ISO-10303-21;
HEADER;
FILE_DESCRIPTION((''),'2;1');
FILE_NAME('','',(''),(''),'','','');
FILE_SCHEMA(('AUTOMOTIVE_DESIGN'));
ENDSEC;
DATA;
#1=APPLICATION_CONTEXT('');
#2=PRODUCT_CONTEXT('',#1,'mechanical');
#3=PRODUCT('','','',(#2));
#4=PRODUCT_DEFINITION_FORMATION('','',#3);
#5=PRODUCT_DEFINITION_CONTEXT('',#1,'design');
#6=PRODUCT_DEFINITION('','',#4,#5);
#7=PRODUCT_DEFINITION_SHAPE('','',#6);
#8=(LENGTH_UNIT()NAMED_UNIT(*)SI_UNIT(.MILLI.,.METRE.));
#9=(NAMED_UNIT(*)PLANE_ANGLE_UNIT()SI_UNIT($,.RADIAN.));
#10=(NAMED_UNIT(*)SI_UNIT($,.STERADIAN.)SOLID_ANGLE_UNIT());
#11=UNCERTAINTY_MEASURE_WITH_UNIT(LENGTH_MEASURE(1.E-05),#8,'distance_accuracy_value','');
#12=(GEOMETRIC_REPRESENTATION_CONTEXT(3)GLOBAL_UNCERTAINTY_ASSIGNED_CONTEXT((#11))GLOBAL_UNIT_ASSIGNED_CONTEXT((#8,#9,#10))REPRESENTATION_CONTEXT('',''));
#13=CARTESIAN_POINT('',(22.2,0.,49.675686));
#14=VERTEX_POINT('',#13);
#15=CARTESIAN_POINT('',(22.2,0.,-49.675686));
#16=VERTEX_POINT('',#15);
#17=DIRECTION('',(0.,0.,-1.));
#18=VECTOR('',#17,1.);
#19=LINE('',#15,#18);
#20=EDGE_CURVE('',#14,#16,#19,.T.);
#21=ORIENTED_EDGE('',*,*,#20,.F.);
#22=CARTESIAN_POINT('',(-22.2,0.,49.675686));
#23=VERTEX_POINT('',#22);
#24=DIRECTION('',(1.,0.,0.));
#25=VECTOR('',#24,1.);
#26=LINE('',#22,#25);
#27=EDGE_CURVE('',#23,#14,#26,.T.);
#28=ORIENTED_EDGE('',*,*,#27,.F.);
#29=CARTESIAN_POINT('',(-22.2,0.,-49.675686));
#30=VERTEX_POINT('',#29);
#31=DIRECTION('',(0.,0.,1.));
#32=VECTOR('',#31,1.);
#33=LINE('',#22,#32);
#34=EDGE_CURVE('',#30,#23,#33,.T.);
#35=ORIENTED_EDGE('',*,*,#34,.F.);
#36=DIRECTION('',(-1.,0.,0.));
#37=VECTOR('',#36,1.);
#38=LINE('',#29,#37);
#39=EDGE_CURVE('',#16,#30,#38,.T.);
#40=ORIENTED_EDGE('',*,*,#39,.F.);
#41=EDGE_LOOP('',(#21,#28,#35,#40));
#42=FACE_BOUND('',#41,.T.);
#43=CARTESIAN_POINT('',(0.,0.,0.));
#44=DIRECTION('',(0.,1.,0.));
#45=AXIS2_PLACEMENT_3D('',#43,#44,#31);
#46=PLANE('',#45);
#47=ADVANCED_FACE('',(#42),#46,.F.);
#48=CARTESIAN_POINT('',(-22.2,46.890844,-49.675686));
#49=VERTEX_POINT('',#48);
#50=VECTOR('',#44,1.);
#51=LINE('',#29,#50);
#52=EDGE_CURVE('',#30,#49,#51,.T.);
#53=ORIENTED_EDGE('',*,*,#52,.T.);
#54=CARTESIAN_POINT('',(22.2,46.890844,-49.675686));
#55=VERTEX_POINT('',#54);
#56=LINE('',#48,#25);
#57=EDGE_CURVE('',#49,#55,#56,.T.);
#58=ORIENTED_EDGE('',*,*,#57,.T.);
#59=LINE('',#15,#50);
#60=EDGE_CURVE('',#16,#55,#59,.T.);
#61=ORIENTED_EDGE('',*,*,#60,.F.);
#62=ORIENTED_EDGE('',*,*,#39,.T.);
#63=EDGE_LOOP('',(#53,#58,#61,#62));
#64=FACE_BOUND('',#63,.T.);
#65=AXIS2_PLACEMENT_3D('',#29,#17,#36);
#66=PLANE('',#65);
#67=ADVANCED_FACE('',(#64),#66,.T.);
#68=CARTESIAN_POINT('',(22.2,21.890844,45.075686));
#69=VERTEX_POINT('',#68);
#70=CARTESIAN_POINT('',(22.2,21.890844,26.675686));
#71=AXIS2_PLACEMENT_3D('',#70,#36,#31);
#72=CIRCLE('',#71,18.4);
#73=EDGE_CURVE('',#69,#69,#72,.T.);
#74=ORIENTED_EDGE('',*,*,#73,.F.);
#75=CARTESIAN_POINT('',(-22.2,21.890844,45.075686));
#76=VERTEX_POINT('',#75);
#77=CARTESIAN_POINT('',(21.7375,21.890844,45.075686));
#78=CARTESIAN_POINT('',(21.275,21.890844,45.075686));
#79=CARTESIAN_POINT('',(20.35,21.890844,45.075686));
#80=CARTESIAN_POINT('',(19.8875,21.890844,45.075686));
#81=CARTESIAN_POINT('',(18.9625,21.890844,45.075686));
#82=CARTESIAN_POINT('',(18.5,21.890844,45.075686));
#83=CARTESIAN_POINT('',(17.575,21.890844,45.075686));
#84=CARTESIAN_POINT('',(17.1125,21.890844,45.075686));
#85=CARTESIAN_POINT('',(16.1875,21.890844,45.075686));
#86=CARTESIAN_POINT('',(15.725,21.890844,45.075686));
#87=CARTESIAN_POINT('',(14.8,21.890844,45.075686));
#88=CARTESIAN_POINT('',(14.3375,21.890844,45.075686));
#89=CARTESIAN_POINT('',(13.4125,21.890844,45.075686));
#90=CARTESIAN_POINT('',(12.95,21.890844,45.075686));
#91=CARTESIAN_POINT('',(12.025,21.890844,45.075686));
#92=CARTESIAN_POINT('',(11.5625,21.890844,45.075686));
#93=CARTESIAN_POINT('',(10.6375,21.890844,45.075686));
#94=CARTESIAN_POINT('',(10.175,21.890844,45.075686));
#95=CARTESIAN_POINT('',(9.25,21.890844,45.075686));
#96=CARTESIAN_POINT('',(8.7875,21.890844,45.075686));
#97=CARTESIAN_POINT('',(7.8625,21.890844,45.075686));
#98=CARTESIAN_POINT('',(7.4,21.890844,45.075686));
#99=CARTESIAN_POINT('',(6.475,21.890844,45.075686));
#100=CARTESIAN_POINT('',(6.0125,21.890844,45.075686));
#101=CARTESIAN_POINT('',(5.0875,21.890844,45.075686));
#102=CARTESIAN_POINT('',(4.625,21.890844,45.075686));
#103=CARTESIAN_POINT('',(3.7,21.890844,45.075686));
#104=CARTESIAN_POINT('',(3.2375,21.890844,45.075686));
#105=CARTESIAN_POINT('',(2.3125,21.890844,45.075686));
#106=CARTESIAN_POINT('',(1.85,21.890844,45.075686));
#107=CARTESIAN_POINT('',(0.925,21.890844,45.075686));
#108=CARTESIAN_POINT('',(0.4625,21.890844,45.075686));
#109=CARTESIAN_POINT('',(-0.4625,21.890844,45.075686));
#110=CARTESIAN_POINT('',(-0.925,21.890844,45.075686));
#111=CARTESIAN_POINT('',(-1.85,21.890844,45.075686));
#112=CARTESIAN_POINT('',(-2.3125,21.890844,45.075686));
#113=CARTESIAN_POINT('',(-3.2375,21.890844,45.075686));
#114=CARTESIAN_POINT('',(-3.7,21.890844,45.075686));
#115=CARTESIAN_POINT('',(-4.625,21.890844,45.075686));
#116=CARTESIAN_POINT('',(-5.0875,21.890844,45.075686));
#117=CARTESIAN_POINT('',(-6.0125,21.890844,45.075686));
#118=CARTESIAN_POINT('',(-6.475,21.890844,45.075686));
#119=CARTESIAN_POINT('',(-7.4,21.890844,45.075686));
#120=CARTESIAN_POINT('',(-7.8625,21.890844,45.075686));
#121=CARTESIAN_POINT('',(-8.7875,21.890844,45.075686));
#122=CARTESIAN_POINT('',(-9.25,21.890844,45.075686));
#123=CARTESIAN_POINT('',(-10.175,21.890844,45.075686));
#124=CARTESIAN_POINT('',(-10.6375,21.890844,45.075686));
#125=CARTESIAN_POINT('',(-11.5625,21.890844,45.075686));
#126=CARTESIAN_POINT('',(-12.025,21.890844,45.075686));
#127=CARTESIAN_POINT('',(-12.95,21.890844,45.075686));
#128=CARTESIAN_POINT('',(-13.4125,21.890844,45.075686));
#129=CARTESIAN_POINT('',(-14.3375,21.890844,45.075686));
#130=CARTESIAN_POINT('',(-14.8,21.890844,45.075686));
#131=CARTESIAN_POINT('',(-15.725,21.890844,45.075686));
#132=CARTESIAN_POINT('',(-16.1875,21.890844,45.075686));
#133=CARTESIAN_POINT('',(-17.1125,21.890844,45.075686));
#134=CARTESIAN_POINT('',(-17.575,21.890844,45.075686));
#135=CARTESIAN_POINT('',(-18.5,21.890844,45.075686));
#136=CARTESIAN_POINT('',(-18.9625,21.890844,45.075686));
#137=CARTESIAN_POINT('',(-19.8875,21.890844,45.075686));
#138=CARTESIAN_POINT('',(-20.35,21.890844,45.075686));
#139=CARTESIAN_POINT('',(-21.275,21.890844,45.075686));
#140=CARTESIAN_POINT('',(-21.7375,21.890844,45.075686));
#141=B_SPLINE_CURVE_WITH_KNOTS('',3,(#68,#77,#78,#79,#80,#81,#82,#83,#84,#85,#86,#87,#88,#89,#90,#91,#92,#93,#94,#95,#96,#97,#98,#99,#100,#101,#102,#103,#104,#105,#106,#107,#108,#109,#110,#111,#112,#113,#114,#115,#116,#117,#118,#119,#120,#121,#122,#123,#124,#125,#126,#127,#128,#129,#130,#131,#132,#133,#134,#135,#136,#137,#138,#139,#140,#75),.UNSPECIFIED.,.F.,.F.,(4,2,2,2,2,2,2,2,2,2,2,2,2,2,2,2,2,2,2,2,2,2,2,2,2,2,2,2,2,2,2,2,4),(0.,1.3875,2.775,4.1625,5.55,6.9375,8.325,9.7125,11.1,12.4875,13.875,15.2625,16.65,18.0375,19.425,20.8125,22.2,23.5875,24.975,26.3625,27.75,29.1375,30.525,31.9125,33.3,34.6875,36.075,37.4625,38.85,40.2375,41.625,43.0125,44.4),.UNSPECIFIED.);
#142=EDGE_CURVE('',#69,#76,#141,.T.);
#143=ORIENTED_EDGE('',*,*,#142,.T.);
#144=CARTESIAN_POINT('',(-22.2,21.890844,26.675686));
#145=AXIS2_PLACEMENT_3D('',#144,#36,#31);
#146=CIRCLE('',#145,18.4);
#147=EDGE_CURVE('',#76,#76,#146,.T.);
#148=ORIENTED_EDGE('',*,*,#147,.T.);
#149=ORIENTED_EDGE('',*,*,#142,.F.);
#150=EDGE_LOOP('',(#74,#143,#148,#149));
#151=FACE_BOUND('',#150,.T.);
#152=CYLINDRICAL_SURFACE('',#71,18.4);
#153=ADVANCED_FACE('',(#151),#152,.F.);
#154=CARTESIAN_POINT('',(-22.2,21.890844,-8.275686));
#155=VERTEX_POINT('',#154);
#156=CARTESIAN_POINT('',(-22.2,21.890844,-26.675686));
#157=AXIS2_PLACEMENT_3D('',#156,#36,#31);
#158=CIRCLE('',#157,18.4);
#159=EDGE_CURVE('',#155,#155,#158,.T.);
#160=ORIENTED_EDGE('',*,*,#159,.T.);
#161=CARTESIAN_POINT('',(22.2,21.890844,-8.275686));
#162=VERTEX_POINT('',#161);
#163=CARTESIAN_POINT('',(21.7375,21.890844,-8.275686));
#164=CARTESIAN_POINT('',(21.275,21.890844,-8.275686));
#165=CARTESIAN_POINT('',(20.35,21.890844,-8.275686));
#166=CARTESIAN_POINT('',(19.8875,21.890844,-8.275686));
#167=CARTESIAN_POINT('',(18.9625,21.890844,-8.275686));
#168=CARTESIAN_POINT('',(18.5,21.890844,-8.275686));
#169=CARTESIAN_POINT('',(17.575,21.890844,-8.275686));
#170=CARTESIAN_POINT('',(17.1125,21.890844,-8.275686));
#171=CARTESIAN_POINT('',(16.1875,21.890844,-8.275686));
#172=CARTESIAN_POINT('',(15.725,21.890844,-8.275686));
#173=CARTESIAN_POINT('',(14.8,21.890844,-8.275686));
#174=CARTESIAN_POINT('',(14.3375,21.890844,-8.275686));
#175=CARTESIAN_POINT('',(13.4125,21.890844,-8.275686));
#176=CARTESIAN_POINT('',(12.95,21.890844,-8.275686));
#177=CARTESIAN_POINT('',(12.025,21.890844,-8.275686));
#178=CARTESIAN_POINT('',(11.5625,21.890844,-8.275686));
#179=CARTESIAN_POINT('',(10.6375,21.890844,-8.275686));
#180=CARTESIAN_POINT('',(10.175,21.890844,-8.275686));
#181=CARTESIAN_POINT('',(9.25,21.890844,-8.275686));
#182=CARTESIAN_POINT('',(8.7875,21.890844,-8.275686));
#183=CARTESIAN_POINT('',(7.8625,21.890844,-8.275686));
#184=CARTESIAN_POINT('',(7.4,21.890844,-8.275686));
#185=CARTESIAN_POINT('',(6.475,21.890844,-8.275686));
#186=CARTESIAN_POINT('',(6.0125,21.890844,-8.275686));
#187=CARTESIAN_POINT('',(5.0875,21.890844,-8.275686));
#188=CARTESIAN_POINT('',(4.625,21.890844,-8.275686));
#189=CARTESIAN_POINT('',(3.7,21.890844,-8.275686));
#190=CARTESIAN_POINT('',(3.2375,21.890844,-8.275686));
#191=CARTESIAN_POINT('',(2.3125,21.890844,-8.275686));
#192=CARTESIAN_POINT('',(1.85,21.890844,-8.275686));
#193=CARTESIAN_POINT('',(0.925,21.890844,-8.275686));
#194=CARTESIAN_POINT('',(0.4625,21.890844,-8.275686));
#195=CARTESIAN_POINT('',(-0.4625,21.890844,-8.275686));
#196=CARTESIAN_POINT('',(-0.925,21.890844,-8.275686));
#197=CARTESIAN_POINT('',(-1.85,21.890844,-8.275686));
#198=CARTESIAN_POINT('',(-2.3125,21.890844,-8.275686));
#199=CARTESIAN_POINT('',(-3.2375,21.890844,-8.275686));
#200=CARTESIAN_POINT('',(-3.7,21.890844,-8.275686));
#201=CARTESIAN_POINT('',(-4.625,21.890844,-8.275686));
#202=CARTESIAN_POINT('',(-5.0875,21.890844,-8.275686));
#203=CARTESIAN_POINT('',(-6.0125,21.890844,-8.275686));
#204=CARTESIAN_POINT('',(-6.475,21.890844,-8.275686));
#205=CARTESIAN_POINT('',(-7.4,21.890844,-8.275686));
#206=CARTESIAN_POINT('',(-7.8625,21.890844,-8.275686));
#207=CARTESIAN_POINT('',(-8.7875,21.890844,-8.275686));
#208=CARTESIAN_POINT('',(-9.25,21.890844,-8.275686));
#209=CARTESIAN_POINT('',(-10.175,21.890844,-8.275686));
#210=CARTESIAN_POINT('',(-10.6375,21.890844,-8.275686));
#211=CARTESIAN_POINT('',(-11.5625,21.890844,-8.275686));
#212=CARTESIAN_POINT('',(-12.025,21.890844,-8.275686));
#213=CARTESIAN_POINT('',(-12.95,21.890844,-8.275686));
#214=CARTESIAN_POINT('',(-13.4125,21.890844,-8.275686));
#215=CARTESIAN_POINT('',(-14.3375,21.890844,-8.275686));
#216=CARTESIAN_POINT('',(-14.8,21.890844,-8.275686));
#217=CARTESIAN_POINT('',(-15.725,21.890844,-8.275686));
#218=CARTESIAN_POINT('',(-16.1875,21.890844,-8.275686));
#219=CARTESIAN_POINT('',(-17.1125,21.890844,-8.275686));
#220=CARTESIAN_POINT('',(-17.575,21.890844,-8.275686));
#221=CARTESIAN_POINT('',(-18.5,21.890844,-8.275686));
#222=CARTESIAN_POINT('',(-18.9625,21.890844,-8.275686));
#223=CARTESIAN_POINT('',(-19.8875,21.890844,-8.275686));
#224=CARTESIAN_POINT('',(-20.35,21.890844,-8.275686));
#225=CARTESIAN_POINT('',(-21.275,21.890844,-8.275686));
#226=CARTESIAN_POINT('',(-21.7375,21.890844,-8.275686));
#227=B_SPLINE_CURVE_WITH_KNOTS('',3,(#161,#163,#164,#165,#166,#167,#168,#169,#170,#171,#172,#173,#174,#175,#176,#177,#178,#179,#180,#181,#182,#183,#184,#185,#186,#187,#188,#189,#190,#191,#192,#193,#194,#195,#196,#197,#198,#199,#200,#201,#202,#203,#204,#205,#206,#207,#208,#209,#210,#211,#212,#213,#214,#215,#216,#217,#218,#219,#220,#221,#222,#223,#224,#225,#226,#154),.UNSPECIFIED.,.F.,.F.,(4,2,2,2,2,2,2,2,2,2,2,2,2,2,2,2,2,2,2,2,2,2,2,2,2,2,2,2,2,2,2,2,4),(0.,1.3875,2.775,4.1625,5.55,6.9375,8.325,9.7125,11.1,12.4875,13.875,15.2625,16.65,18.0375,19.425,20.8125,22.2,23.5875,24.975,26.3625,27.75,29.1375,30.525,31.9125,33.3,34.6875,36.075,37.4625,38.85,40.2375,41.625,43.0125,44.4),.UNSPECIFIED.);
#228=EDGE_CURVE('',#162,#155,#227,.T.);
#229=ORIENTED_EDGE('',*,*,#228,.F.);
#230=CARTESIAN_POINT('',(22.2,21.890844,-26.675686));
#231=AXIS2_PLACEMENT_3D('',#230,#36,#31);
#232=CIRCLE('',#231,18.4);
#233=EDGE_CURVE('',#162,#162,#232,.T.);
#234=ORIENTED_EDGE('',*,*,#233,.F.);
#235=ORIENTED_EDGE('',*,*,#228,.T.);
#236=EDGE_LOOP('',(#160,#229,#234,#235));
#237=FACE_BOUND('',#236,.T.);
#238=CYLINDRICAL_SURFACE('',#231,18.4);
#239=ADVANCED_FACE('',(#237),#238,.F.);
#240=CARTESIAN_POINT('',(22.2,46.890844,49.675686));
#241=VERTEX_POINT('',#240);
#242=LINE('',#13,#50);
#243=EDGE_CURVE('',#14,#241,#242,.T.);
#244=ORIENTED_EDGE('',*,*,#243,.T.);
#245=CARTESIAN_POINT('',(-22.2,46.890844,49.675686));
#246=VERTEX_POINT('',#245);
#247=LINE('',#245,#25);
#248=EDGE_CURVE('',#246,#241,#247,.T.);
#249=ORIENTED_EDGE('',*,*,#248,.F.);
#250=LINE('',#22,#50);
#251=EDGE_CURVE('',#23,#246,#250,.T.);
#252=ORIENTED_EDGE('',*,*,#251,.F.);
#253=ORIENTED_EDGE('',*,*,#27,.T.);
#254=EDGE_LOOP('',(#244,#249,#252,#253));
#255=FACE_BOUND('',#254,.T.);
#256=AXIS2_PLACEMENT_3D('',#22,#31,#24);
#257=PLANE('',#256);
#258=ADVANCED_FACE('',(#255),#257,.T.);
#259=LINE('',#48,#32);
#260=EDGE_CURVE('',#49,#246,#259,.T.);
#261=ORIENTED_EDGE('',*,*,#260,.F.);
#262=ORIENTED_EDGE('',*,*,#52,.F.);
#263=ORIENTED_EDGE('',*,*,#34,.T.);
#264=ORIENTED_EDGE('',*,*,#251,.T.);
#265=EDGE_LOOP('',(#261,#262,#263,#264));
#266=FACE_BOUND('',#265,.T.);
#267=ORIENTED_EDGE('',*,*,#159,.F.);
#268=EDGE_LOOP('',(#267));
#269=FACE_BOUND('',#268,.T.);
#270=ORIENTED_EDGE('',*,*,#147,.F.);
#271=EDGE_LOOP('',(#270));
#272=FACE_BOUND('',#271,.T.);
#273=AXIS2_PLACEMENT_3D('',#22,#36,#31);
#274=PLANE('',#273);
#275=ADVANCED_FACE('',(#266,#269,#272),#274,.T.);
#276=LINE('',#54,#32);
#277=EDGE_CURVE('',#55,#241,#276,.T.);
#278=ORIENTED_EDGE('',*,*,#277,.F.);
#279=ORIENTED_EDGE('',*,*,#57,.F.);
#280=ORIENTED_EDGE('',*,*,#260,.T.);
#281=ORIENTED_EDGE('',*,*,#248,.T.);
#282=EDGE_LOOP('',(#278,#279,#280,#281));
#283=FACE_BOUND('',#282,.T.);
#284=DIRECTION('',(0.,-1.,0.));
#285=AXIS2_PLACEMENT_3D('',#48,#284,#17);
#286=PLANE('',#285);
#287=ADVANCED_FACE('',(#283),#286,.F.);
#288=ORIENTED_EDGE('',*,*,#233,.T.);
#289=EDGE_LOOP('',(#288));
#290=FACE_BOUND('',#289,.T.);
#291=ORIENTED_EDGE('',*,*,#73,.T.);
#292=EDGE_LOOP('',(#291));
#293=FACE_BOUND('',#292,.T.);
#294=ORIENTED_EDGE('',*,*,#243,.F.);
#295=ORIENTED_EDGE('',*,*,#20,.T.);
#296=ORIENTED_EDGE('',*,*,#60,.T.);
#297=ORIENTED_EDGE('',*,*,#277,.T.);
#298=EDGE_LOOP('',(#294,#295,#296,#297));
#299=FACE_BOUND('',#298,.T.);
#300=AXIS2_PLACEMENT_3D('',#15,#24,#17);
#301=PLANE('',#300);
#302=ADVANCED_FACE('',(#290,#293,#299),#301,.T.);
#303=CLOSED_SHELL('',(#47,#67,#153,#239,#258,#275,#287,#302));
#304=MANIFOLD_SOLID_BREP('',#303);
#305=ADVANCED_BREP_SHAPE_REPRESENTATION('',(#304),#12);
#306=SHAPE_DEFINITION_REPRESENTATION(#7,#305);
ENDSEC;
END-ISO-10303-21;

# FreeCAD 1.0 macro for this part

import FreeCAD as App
import Part
import Sketcher
Q = App.Units.Quantity

doc = App.newDocument("Part")
body = doc.addObject("PartDesign::Body", "Body")

# Sketch on XZ plane
sketch1 = doc.addObject("Sketcher::SketchObject", "Sketch")
body.addObject(sketch1)
sketch1.AttachmentSupport = (doc.XZ_Plane, [""])
sketch1.MapMode = "FlatFace"
sketch1.addGeometry(Part.Circle(App.Vector(0, 0, 0), App.Vector(0, 0, 1), 75), False)
sketch1.addConstraint([
    Sketcher.Constraint("Coincident", 0, 3, -1, 1),
    Sketcher.Constraint("Diameter", 0, Q("150 mm")),
])
pad1 = doc.addObject("PartDesign::Pad", "Pad")
body.addObject(pad1)
pad1.Profile = sketch1
pad1.Length = 100
pad1.Reversed = True

# Sketch on XZ plane
sketch2 = doc.addObject("Sketcher::SketchObject", "Sketch001")
body.addObject(sketch2)
sketch2.AttachmentSupport = (doc.XZ_Plane, [""])
sketch2.MapMode = "FlatFace"
sketch2.AttachmentOffset = App.Placement(App.Vector(0, 0, -100), App.Rotation())
sketch2.addGeometry([
    Part.LineSegment(App.Vector(-99, -99, 0), App.Vector(-99, 99, 0)),  # 0
    Part.LineSegment(App.Vector(-99, 99, 0), App.Vector(99, 99, 0)),  # 1
    Part.LineSegment(App.Vector(99, 99, 0), App.Vector(99, -99, 0)),  # 2
    Part.LineSegment(App.Vector(99, -99, 0), App.Vector(-99, -99, 0)),  # 3
    Part.LineSegment(App.Vector(22, 50, 0), App.Vector(-22, 50, 0)),  # 4
    Part.LineSegment(App.Vector(-22, 50, 0), App.Vector(-22, -50, 0)),  # 5
    Part.LineSegment(App.Vector(-22, -50, 0), App.Vector(22, -50, 0)),  # 6
    Part.LineSegment(App.Vector(22, -50, 0), App.Vector(22, 50, 0)),  # 7
], False)
sketch2.addConstraint([
    Sketcher.Constraint("Coincident", 0, 2, 1, 1),
    Sketcher.Constraint("Coincident", 1, 2, 2, 1),
    Sketcher.Constraint("Coincident", 2, 2, 3, 1),
    Sketcher.Constraint("Coincident", 3, 2, 0, 1),
    Sketcher.Constraint("Coincident", 4, 2, 5, 1),
    Sketcher.Constraint("Coincident", 5, 2, 6, 1),
    Sketcher.Constraint("Coincident", 6, 2, 7, 1),
    Sketcher.Constraint("Coincident", 7, 2, 4, 1),
    Sketcher.Constraint("Vertical", 0),
    Sketcher.Constraint("Horizontal", 1),
    Sketcher.Constraint("Vertical", 2),
    Sketcher.Constraint("Horizontal", 3),
    Sketcher.Constraint("Horizontal", 4),
    Sketcher.Constraint("Vertical", 5),
    Sketcher.Constraint("Horizontal", 6),
    Sketcher.Constraint("Vertical", 7),
    Sketcher.Constraint("Symmetric", 0, 2, 2, 2, -1, 1),
    Sketcher.Constraint("Symmetric", 4, 2, 6, 2, -1, 1),
    Sketcher.Constraint("Equal", 3, 0),
    Sketcher.Constraint("DistanceX", 4, 2, 4, 1, Q("44.4 mm")),
    Sketcher.Constraint("DistanceX", 1, 1, 1, 2, Q("198.904 mm")),
    Sketcher.Constraint("DistanceY", 5, 2, 5, 1, Q("99.351372 mm")),
])
pocket1 = doc.addObject("PartDesign::Pocket", "Pocket")
body.addObject(pocket1)
pocket1.Profile = sketch2
pocket1.Type = "ThroughAll"
pocket1.Reversed = True

# Sketch on XY plane
sketch3 = doc.addObject("Sketcher::SketchObject", "Sketch002")
body.addObject(sketch3)
sketch3.AttachmentSupport = (doc.XY_Plane, [""])
sketch3.MapMode = "FlatFace"
sketch3.AttachmentOffset = App.Placement(App.Vector(0, 0, 49.675686), App.Rotation())
sketch3.addGeometry([
    Part.LineSegment(App.Vector(-22, 100, 0), App.Vector(-22, 47, 0)),
    Part.LineSegment(App.Vector(-22, 47, 0), App.Vector(22, 47, 0)),
    Part.LineSegment(App.Vector(22, 47, 0), App.Vector(22, 100, 0)),
    Part.LineSegment(App.Vector(22, 100, 0), App.Vector(-22, 100, 0)),
], False)
sketch3.addConstraint([
    Sketcher.Constraint("Coincident", 0, 2, 1, 1),
    Sketcher.Constraint("Coincident", 1, 2, 2, 1),
    Sketcher.Constraint("Coincident", 2, 2, 3, 1),
    Sketcher.Constraint("Coincident", 3, 2, 0, 1),
    Sketcher.Constraint("Vertical", 0),
    Sketcher.Constraint("Horizontal", 1),
    Sketcher.Constraint("Vertical", 2),
    Sketcher.Constraint("Horizontal", 3),
    Sketcher.Constraint("DistanceX", 1, 1, 1, 2, Q("44.4 mm")),
    Sketcher.Constraint("DistanceY", -1, 1, 2, 2, Q("100 mm")),
    Sketcher.Constraint("DistanceX", 0, 2, -1, 1, Q("22.2 mm")),
    Sketcher.Constraint("DistanceY", 0, 2, 0, 1, Q("53.109156 mm")),
])
pocket2 = doc.addObject("PartDesign::Pocket", "Pocket001")
body.addObject(pocket2)
pocket2.Profile = sketch3
pocket2.Type = "ThroughAll"

# Sketch on YZ plane
sketch4 = doc.addObject("Sketcher::SketchObject", "Sketch003")
body.addObject(sketch4)
sketch4.AttachmentSupport = (doc.YZ_Plane, [""])
sketch4.MapMode = "FlatFace"
sketch4.AttachmentOffset = App.Placement(App.Vector(0, 0, -22.2), App.Rotation())
sketch4.addGeometry([
    Part.Circle(App.Vector(22, 27, 0), App.Vector(0, 0, 1), 18),
    Part.Circle(App.Vector(22, -27, 0), App.Vector(0, 0, 1), 18),
], False)
sketch4.addConstraint([
    Sketcher.Constraint("Equal", 0, 1),
    Sketcher.Constraint("Symmetric", 0, 3, 1, 3, -1),
    Sketcher.Constraint("Diameter", 0, Q("36.8 mm")),
    Sketcher.Constraint("DistanceY", 1, 3, 0, 3, Q("53.351372 mm")),
    Sketcher.Constraint("DistanceX", -1, 1, 0, 3, Q("21.890844 mm")),
])
pocket3 = doc.addObject("PartDesign::Pocket", "Pocket002")
body.addObject(pocket3)
pocket3.Profile = sketch4
pocket3.Type = "ThroughAll"
pocket3.Reversed = True

doc.recompute()
